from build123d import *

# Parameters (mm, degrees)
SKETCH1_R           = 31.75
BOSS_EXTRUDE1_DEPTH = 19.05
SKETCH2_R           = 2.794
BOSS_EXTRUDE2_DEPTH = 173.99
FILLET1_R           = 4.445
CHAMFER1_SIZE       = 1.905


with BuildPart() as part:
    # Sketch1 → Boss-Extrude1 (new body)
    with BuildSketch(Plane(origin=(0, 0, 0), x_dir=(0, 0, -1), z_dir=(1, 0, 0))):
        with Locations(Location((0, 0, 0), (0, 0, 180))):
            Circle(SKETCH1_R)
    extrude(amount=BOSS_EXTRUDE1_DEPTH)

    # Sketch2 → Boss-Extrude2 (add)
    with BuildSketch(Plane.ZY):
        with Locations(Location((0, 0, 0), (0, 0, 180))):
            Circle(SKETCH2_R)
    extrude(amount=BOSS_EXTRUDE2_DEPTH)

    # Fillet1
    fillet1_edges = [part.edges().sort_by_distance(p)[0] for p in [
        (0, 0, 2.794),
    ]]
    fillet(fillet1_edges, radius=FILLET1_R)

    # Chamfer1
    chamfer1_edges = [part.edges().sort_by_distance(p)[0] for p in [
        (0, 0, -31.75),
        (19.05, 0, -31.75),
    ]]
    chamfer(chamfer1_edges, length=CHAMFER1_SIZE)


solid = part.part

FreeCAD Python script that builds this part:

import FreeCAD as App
import Part
import Sketcher
from FreeCAD import Vector
Q = App.Units.Quantity


def edges_at(feature, points):
    """Names of the edges that pass closest to the given points."""
    edges = feature.Shape.Edges
    near = lambda p: min(range(len(edges)), key=lambda i: edges[i].distToShape(Part.Vertex(*p))[0])
    return sorted({f"Edge{near(p) + 1}" for p in points})

doc = App.newDocument("Part")
params = doc.addObject("Spreadsheet::Sheet", "Params")
for row, (alias, value) in enumerate([
    ("sketch1_diameter", "2.5 in"),
    ("pad1_length", "0.75 in"),
    ("sketch2_diameter", "0.22 in"),
    ("pad2_length", "6.85 in"),
    ("fillet_radius", "0.175 in"),
    ("chamfer_size", "0.075 in"),
], start=1):
    params.set(f"A{row}", alias)
    params.set(f"B{row}", "=" + value)
    params.setAlias(f"B{row}", alias)

body = doc.addObject("PartDesign::Body", "Body")

sketch1 = body.newObject("Sketcher::SketchObject", "Sketch")
sketch1.AttachmentSupport = (doc.getObject("YZ_Plane"), [""])
sketch1.MapMode = "FlatFace"
sketch1.addGeometry(Part.Circle(Vector(0, 0, 0), Vector(0, 0, 1), 32), False)
sketch1.addConstraint([
    Sketcher.Constraint("Coincident", 0, 3, -1, 1),
    Sketcher.Constraint("Diameter", 0, Q("2.5 in")),
])
sketch1.setExpression("Constraints[1]", "Params.sketch1_diameter")
pad1 = body.newObject("PartDesign::Pad", "Pad")
pad1.Profile = sketch1
pad1.setExpression("Length", "Params.pad1_length")

sketch2 = body.newObject("Sketcher::SketchObject", "Sketch001")
sketch2.AttachmentSupport = (doc.getObject("YZ_Plane"), [""])
sketch2.MapMode = "FlatFace"
sketch2.addGeometry(Part.Circle(Vector(0, 0, 0), Vector(0, 0, 1), 2.8), False)
sketch2.addConstraint([
    Sketcher.Constraint("Coincident", 0, 3, -1, 1),
    Sketcher.Constraint("Diameter", 0, Q("0.22 in")),
])
sketch2.setExpression("Constraints[1]", "Params.sketch2_diameter")
pad2 = body.newObject("PartDesign::Pad", "Pad001")
pad2.Profile = sketch2
pad2.setExpression("Length", "Params.pad2_length")
pad2.Reversed = True
doc.recompute()

fillet = body.newObject("PartDesign::Fillet", "Fillet")
fillet.Base = (pad2, edges_at(pad2, [(0, 0, 2.794)]))
fillet.setExpression("Radius", "Params.fillet_radius")
doc.recompute()

chamfer = body.newObject("PartDesign::Chamfer", "Chamfer")
chamfer.Base = (fillet, edges_at(fillet, [(0, 0, -31.75), (19.05, 0, -31.75)]))
chamfer.setExpression("Size", "Params.chamfer_size")

doc.recompute()
